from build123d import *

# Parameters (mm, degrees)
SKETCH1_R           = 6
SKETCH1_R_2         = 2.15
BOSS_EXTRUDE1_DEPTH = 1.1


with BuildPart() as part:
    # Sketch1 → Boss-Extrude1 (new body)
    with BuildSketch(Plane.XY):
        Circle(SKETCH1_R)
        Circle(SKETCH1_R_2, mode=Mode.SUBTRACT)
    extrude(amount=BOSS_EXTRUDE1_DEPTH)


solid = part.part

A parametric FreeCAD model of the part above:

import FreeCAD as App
import Part
import Sketcher

V = App.Vector
Q = App.Units.Quantity

doc = App.newDocument("Part")
body = doc.addObject("PartDesign::Body", "Body")

# Sketch on XY plane
sketch1 = doc.addObject("Sketcher::SketchObject", "Sketch")
body.addObject(sketch1)
sketch1.AttachmentSupport = (doc.XY_Plane, [""])
sketch1.MapMode = "FlatFace"
sketch1.addGeometry(Part.Circle(V(0, 0, 0), V(0, 0, 1), 6), False)
sketch1.addGeometry(Part.Circle(V(0, 0, 0), V(0, 0, 1), 2.1), False)
sketch1.addConstraint(Sketcher.Constraint("Coincident", 0, 3, -1, 1))
sketch1.addConstraint(Sketcher.Constraint("Coincident", 1, 3, -1, 1))
sketch1.addConstraint(Sketcher.Constraint("Diameter", 0, Q("12 mm")))
sketch1.addConstraint(Sketcher.Constraint("Diameter", 1, Q("4.3 mm")))
pad1 = doc.addObject("PartDesign::Pad", "Pad")
body.addObject(pad1)
pad1.Profile = sketch1
pad1.Length = 1.1

doc.recompute()
